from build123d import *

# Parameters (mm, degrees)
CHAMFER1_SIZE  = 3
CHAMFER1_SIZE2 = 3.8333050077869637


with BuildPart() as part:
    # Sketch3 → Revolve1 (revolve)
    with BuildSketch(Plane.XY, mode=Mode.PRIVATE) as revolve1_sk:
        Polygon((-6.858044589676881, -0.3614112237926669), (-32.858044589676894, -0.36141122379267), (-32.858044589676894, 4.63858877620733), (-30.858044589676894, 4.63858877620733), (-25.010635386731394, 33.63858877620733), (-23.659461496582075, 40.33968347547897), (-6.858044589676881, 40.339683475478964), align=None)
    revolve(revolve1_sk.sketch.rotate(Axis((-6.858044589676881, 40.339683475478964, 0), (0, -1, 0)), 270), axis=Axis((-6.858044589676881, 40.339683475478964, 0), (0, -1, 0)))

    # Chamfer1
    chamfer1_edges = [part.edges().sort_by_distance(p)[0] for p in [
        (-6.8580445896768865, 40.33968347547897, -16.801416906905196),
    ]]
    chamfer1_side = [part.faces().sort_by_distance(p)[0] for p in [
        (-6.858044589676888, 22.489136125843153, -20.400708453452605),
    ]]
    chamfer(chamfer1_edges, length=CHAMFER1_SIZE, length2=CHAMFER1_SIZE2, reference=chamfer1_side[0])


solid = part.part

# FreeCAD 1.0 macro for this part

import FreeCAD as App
import Part
import Sketcher

V = App.Vector
Q = App.Units.Quantity


def edges_at(feature, points):
    """Names of the edges that pass closest to the given points."""
    edges = feature.Shape.Edges
    near = lambda p: min(range(len(edges)), key=lambda i: edges[i].distToShape(Part.Vertex(*p))[0])
    return sorted({f"Edge{near(p) + 1}" for p in points})


def add_polygon(sketch, points):
    """Adds a closed chain of lines whose ends are joined by coincident constraints."""
    first, n = sketch.GeometryCount, len(points)
    for a, b in zip(points, points[1:] + points[:1]):
        sketch.addGeometry(Part.LineSegment(App.Vector(*a, 0), App.Vector(*b, 0)), False)
    for i in range(n):
        sketch.addConstraint(Sketcher.Constraint("Coincident", first + i, 2, first + (i + 1) % n, 1))

doc = App.newDocument("Part")
params = doc.addObject("Spreadsheet::Sheet", "Params")
for row, (alias, value) in enumerate([
    ("sketch1_width", "26 mm"),
    ("sketch1_width2", "2 mm"),
    ("sketch1_height", "5 mm"),
    ("revolution_angle", "360 deg"),
    ("chamfer_size", "3 mm"),
    ("chamfer_size2", "3.833305 mm"),
], start=1):
    params.set(f"A{row}", alias)
    params.set(f"B{row}", "=" + value)
    params.setAlias(f"B{row}", alias)

body = doc.addObject("PartDesign::Body", "Body")

# Sketch on XY plane
sketch1 = doc.addObject("Sketcher::SketchObject", "Sketch")
body.addObject(sketch1)
sketch1.AttachmentSupport = (doc.XY_Plane, [""])
sketch1.MapMode = "FlatFace"
add_polygon(sketch1, [(-32.9, -0.4), (-6.9, -0.4), (-6.9, 40.3), (-23.7, 40.3), (-30.9, 4.6), (-32.9, 4.6)])  # lines 0-5
sketch1.addGeometry(Part.LineSegment(V(-6.9, 40.3, 0), V(-6.9, -0.4, 0)), True)  # axis
sketch1.addConstraint([
    Sketcher.Constraint("Horizontal", 0),
    Sketcher.Constraint("Vertical", 1),
    Sketcher.Constraint("Horizontal", 2),
    Sketcher.Constraint("Horizontal", 4),
    Sketcher.Constraint("Vertical", 5),
    Sketcher.Constraint("Vertical", 6),
    Sketcher.Constraint("Coincident", 6, 1, 1, 2),
    Sketcher.Constraint("Horizontal", 5, 2, 6, 2),
    Sketcher.Constraint("DistanceX", 0, 1, 0, 2, Q("26 mm")),
    Sketcher.Constraint("DistanceX", 4, 2, 4, 1, Q("2 mm")),
    Sketcher.Constraint("DistanceY", 5, 2, 5, 1, Q("5 mm")),
    Sketcher.Constraint("DistanceX", 2, 2, 2, 1, Q("16.801417 mm")),
    Sketcher.Constraint("DistanceY", 1, 1, 1, 2, Q("40.701095 mm")),
    Sketcher.Constraint("DistanceY", 0, 2, -1, 1, Q("0.361411 mm")),
    Sketcher.Constraint("DistanceX", 2, 2, -1, 1, Q("23.659461 mm")),
])
sketch1.setExpression("Constraints[14]", "Params.sketch1_width")
sketch1.setExpression("Constraints[15]", "Params.sketch1_width2")
sketch1.setExpression("Constraints[16]", "Params.sketch1_height")
revolution = doc.addObject("PartDesign::Revolution", "Revolution")
body.addObject(revolution)
revolution.Profile = sketch1
revolution.ReferenceAxis = (sketch1, ["Axis0"])
revolution.setExpression("Angle", "Params.revolution_angle")
doc.recompute()

chamfer = doc.addObject("PartDesign::Chamfer", "Chamfer")
body.addObject(chamfer)
chamfer.Base = (revolution, edges_at(revolution, [(-6.858, 40.34, -16.801)]))
chamfer.ChamferType = "Two distances"
chamfer.setExpression("Size", "Params.chamfer_size")
chamfer.setExpression("Size2", "Params.chamfer_size2")
chamfer.FlipDirection = True

doc.recompute()
